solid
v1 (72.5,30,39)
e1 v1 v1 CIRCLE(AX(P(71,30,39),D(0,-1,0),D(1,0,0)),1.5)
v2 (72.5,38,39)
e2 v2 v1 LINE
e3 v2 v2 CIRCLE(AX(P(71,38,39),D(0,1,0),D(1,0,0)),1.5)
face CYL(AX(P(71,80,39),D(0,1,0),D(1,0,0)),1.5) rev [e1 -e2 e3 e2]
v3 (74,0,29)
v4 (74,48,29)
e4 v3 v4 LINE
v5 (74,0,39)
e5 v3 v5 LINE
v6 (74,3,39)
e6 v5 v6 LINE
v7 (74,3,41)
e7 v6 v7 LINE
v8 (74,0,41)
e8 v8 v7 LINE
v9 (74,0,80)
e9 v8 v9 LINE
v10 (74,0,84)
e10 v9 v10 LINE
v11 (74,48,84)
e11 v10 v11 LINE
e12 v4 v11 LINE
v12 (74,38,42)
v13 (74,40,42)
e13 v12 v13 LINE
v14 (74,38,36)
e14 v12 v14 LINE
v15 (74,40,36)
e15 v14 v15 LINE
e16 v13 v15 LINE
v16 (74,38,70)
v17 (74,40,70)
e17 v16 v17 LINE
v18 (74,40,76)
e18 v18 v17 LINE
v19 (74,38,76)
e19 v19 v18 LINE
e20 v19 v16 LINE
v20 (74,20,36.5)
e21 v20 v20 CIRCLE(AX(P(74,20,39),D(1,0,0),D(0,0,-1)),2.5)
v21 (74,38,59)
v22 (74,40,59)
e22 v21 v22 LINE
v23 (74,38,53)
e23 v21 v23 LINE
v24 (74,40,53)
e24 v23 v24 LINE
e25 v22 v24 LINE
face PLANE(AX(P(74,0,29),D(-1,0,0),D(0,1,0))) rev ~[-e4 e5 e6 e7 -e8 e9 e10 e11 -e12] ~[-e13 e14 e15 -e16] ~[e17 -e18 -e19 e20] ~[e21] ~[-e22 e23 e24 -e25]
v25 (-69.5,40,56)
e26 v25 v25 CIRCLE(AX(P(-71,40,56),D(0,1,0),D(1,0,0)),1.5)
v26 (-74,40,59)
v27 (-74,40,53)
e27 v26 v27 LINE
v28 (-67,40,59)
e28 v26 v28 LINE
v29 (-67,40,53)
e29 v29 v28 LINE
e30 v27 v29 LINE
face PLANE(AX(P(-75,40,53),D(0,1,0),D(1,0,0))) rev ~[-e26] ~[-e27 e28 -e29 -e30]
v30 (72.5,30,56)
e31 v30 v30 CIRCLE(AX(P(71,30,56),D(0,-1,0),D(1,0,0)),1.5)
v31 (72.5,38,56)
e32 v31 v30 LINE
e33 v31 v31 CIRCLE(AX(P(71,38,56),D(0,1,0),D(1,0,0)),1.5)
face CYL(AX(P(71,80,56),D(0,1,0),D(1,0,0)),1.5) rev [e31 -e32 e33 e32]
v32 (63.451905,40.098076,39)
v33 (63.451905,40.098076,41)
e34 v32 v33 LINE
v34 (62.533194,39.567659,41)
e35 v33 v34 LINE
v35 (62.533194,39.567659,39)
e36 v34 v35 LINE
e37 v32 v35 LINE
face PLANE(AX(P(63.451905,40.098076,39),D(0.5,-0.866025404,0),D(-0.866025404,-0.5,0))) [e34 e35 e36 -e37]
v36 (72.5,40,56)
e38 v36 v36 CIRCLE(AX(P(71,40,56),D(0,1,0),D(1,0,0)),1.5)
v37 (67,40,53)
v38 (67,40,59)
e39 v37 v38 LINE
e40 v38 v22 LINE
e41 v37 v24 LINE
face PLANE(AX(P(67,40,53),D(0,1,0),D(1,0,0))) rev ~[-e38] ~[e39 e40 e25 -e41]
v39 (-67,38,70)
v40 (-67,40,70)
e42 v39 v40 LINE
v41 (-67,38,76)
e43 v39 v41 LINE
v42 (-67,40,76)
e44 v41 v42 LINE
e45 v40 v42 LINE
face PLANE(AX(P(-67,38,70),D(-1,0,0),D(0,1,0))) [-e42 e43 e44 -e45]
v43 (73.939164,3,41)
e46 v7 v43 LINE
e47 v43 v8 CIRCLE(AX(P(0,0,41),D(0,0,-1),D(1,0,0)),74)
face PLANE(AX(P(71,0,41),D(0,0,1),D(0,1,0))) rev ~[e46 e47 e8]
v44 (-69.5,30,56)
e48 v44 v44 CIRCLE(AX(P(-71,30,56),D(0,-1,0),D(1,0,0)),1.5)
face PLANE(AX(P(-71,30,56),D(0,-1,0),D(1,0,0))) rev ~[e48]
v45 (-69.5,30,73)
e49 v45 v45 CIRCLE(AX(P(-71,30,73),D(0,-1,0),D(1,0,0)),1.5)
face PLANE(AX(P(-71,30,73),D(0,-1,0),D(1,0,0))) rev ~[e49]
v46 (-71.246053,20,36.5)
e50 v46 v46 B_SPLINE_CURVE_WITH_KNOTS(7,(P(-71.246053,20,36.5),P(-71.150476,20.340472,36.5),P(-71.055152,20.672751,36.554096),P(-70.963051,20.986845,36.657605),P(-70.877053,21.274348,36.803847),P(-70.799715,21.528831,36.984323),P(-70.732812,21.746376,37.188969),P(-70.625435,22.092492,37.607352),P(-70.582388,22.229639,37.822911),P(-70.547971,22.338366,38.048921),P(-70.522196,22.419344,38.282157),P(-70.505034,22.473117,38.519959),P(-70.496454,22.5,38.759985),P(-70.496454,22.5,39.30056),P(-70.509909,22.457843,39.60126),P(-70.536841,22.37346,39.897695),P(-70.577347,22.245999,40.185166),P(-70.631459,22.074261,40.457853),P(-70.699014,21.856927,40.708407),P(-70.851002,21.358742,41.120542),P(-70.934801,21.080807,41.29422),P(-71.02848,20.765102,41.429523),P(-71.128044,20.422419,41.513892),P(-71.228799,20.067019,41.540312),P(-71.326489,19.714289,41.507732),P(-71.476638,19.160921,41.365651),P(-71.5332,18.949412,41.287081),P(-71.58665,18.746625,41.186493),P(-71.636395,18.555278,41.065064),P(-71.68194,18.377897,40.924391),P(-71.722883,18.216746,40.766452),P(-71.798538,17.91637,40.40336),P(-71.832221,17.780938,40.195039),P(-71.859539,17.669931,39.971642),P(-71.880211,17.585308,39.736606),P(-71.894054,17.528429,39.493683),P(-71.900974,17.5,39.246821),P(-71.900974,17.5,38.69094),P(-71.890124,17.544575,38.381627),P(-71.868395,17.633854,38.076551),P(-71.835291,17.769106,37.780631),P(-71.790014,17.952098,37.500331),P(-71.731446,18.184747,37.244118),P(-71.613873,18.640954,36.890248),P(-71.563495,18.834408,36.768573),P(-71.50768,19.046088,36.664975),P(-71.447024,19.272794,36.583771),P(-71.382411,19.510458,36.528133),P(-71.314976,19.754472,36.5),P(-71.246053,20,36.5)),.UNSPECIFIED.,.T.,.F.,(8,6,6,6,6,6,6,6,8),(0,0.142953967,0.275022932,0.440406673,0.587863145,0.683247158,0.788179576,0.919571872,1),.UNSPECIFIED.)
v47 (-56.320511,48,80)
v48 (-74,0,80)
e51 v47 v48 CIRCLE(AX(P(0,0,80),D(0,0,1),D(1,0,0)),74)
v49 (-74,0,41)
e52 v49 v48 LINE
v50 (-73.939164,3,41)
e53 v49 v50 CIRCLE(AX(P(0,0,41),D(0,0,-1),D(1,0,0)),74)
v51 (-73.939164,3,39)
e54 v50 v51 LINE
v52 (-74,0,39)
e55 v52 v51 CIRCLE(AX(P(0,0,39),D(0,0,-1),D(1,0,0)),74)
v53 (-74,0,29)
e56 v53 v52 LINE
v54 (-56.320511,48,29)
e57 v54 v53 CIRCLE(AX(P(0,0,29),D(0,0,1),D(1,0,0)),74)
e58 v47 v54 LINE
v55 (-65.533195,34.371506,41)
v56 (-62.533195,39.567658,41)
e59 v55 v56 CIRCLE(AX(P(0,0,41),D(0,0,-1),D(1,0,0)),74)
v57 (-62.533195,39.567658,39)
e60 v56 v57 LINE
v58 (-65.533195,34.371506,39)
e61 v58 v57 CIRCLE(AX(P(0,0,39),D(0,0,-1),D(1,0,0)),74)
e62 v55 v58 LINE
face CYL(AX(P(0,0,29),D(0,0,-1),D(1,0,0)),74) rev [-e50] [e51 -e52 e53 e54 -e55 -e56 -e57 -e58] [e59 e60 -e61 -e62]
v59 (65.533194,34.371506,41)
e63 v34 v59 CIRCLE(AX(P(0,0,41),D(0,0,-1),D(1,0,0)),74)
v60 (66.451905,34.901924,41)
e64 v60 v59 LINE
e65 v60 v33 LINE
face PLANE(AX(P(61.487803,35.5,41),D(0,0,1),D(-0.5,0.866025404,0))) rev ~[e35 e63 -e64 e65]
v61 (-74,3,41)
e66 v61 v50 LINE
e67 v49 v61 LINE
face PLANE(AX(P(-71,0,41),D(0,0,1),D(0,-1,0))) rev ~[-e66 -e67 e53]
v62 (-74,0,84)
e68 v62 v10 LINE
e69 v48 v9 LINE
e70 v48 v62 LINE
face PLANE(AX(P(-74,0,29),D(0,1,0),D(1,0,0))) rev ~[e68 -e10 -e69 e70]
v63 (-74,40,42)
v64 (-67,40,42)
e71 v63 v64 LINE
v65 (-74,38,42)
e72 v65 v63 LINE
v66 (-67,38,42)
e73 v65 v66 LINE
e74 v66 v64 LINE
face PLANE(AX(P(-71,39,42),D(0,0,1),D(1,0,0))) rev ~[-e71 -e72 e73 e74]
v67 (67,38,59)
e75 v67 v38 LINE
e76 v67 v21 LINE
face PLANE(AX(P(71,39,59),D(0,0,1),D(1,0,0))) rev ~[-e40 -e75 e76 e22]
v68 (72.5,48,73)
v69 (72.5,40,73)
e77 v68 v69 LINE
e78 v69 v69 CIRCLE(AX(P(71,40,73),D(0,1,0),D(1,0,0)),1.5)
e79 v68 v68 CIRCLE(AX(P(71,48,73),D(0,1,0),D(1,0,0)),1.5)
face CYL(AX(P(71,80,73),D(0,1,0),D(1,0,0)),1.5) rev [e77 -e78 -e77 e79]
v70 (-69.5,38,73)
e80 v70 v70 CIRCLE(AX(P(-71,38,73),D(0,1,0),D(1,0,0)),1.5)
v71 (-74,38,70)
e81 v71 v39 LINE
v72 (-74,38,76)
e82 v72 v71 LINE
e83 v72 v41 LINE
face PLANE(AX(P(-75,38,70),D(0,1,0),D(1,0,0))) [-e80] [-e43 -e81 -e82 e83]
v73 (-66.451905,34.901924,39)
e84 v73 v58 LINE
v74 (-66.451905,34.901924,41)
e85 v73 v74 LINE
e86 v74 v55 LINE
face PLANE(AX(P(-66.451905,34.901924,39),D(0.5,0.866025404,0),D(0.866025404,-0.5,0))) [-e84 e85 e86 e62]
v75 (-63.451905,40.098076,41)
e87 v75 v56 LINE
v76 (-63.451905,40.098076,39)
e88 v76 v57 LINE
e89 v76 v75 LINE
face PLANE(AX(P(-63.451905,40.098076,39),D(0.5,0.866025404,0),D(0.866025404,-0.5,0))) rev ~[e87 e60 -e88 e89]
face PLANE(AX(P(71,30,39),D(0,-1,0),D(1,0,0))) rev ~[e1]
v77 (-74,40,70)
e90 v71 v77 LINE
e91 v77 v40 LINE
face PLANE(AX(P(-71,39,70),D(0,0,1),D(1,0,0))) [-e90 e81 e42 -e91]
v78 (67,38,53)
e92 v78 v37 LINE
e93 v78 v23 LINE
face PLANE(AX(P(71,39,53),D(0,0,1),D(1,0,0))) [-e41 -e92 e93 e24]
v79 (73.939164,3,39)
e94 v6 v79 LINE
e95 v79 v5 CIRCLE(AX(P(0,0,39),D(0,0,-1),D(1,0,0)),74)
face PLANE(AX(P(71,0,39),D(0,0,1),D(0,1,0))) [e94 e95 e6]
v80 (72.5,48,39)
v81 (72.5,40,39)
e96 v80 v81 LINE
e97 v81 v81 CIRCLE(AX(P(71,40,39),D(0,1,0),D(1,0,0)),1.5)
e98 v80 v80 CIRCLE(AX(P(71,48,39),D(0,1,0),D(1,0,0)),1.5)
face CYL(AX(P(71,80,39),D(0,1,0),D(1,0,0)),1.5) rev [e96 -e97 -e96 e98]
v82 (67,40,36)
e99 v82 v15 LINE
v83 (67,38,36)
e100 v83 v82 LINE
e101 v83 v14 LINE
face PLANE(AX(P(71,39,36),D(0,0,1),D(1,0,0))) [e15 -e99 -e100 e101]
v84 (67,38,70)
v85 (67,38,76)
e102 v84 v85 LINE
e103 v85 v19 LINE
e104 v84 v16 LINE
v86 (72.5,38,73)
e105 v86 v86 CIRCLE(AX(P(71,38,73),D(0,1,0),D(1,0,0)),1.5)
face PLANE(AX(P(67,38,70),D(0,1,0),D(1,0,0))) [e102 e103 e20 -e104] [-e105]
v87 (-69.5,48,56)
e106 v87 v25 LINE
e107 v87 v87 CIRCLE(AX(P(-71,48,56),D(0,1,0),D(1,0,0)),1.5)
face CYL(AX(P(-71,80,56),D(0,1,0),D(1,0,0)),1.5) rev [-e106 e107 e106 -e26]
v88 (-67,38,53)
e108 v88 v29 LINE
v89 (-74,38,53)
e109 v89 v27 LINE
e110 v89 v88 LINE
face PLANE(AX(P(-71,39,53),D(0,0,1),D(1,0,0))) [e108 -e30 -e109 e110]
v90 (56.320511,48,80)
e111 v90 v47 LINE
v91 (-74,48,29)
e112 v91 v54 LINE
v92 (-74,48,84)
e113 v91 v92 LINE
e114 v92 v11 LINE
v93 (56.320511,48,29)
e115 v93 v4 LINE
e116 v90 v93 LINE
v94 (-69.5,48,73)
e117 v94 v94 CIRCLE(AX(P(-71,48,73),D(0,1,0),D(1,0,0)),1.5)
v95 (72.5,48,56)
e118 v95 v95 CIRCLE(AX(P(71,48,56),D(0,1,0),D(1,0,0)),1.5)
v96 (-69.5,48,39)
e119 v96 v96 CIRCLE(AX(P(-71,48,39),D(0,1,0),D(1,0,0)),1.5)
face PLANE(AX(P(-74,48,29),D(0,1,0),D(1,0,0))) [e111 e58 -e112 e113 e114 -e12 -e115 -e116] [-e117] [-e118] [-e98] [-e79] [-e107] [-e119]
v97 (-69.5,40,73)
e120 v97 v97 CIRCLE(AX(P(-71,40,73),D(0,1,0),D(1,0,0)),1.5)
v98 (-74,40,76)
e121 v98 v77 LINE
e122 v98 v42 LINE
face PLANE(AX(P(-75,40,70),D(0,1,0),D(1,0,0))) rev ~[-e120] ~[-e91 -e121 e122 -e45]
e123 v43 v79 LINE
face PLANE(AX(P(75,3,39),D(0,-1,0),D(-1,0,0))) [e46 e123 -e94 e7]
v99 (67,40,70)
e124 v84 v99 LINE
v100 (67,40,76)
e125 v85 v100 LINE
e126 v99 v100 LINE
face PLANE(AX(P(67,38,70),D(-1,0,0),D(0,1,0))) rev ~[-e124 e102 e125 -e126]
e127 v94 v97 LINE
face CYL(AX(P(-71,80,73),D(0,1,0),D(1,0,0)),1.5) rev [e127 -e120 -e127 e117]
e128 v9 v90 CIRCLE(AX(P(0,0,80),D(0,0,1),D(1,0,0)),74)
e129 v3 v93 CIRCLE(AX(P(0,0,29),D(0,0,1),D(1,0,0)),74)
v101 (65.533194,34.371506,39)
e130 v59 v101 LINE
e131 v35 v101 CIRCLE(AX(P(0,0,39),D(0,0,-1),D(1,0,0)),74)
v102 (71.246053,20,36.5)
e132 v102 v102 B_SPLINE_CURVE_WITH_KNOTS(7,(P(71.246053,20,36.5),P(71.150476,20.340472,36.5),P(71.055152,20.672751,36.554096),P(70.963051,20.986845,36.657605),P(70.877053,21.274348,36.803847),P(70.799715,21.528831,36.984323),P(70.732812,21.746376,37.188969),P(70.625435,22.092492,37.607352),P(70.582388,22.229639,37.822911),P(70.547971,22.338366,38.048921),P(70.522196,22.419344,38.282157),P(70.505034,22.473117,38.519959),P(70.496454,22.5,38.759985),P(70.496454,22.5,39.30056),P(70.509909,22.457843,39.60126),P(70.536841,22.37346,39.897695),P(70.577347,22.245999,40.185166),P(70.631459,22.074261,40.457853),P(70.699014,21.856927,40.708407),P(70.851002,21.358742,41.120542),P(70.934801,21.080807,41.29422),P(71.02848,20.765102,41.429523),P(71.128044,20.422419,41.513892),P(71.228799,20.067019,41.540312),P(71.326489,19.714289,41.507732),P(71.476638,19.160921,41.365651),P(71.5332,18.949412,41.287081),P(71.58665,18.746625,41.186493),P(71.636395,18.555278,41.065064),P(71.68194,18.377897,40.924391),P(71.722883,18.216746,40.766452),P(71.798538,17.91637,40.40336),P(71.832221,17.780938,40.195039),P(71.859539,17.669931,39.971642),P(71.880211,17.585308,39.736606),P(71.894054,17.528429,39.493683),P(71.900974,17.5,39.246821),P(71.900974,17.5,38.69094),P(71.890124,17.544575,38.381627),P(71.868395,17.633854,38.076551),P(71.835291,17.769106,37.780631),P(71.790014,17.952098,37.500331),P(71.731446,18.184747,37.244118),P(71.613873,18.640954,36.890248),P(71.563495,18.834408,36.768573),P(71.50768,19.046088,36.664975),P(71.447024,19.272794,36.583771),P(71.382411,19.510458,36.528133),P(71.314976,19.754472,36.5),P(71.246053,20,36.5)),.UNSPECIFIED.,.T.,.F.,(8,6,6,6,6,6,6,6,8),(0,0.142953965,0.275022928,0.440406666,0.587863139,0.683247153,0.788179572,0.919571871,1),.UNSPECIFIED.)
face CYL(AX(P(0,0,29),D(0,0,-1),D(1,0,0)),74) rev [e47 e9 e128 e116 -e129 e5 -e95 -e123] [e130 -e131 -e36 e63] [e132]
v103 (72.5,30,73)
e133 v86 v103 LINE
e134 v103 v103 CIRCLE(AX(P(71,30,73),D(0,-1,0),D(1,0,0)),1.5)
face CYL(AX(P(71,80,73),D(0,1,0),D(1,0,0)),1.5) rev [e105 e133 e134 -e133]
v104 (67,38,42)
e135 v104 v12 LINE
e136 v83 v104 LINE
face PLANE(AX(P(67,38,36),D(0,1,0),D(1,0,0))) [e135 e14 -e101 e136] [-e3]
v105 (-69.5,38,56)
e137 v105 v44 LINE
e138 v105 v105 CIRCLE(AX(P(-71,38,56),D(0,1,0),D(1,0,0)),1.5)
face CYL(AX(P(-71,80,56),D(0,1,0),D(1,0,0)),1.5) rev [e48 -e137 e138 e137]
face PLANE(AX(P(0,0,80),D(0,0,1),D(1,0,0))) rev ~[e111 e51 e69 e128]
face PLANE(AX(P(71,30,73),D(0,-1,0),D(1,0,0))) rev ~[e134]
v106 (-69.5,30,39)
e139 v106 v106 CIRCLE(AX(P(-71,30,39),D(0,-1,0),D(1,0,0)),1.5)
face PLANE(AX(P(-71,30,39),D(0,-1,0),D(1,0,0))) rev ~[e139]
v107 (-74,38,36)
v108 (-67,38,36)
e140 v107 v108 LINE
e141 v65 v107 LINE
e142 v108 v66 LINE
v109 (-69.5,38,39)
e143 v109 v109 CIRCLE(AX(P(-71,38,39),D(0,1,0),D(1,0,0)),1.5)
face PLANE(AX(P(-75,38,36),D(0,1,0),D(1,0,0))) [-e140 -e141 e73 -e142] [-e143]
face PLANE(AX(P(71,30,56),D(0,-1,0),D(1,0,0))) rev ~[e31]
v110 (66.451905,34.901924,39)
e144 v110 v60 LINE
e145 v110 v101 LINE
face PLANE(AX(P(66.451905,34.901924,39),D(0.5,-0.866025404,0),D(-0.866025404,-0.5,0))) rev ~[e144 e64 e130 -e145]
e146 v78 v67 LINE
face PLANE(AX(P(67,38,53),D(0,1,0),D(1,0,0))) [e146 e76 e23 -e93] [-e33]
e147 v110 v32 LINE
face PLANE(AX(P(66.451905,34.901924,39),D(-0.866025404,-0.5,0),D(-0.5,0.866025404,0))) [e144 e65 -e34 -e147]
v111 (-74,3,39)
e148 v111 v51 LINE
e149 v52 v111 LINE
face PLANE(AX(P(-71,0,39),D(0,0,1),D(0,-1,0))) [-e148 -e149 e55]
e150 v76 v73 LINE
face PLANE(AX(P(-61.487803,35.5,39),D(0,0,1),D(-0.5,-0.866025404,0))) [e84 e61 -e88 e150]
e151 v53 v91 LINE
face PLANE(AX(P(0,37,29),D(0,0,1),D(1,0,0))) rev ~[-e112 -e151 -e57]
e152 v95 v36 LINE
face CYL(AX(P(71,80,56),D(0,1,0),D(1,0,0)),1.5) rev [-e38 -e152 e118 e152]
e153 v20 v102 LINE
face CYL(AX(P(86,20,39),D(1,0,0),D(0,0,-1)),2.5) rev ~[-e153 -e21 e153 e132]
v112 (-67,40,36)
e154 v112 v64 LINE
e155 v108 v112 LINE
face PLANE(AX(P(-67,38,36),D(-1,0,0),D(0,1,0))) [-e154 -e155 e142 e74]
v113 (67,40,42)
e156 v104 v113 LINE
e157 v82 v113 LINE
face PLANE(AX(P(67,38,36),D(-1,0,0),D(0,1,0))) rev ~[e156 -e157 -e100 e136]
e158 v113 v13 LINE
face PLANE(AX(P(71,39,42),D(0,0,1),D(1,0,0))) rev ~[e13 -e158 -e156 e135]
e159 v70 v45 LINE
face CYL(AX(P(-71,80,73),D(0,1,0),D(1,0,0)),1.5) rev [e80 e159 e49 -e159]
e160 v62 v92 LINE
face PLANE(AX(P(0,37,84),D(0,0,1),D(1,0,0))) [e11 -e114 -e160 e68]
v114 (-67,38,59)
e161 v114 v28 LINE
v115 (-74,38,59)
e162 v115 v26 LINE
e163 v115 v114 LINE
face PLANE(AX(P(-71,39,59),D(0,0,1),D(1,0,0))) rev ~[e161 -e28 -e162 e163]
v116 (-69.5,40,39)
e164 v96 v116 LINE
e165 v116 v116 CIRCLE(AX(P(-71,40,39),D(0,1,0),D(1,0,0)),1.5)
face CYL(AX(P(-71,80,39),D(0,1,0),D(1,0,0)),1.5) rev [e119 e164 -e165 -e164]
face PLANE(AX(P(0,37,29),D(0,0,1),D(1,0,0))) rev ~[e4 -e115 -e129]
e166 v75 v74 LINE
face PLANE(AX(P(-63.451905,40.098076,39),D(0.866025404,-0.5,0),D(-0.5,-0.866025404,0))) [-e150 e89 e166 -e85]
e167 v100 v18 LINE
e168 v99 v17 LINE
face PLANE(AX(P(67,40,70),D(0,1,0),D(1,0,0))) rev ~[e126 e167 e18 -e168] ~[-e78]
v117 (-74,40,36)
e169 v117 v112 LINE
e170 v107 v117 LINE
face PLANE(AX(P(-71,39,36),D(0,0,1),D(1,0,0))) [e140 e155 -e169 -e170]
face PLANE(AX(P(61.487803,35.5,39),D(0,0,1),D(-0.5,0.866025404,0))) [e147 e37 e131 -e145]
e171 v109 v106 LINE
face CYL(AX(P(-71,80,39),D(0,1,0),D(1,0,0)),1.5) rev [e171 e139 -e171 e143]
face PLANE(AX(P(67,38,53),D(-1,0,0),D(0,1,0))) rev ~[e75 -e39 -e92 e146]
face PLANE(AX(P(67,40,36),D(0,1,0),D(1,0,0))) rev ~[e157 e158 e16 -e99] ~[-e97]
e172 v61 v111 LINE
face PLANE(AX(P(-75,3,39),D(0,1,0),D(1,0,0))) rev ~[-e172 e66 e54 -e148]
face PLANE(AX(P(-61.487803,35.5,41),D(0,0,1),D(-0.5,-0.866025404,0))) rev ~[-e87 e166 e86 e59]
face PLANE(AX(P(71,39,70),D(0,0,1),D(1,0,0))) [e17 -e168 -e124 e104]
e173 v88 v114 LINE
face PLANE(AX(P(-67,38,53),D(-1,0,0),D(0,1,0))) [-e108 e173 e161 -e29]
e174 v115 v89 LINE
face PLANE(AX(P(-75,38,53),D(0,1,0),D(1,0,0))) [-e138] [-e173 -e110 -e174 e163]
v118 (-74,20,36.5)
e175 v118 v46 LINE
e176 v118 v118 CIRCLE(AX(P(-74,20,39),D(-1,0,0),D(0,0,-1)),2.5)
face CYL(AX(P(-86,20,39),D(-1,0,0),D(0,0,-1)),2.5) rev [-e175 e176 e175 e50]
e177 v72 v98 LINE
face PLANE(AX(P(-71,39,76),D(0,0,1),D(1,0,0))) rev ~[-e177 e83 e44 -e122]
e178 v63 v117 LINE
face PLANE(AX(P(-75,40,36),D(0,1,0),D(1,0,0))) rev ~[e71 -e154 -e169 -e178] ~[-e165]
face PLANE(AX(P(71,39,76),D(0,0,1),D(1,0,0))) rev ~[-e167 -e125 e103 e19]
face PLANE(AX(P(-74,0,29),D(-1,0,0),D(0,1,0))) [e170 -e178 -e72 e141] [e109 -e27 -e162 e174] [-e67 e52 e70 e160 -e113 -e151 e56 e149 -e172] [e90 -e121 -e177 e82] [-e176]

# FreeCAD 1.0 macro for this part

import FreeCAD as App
import Part
import Sketcher

V = App.Vector


def add_polygon(sketch, points):
    """Adds a closed chain of lines whose ends are joined by coincident constraints."""
    first, n = sketch.GeometryCount, len(points)
    for a, b in zip(points, points[1:] + points[:1]):
        sketch.addGeometry(Part.LineSegment(App.Vector(*a, 0), App.Vector(*b, 0)), False)
    for i in range(n):
        sketch.addConstraint(Sketcher.Constraint("Coincident", first + i, 2, first + (i + 1) % n, 1))

doc = App.newDocument("Part")
body = doc.addObject("PartDesign::Body", "Body")

# Sketch on YZ plane
sketch1 = body.newObject("Sketcher::SketchObject", "Sketch")
sketch1.AttachmentSupport = (doc.getObject("YZ_Plane"), [""])
sketch1.MapMode = "FlatFace"
sketch1.AttachmentOffset = App.Placement(V(0, 0, -86), App.Rotation())
sketch1.addGeometry(Part.Circle(V(-10, 69, 0), V(0, 0, 1), 2.5), False)
sketch1.addConstraint([
    Sketcher.Constraint("Diameter", 0, 5.0),
    Sketcher.Constraint("DistanceX", 0, 3, -1, 1, 10.0),
    Sketcher.Constraint("DistanceY", -1, 1, 0, 3, 69.0),
])
pad1 = body.newObject("PartDesign::Pad", "Pad")
pad1.Profile = sketch1
pad1.Length = 40
body2 = doc.addObject("PartDesign::Body", "Body001")
body2.AllowCompound = True

# Sketch on YZ plane
sketch2 = body2.newObject("Sketcher::SketchObject", "Sketch001")
sketch2.AttachmentSupport = (doc.getObject("YZ_Plane001"), [""])
sketch2.MapMode = "FlatFace"
sketch2.AttachmentOffset = App.Placement(V(0, 0, -86), App.Rotation())
sketch2.addGeometry(Part.Circle(V(-10, 39, 0), V(0, 0, 1), 2.5), False)
sketch2.addConstraint([
    Sketcher.Constraint("Diameter", 0, 5.0),
    Sketcher.Constraint("DistanceX", 0, 3, -1, 1, 10.0),
    Sketcher.Constraint("DistanceY", -1, 1, 0, 3, 39.0),
])
pad2 = body2.newObject("PartDesign::Pad", "Pad001")
pad2.Profile = sketch2
pad2.Length = 40
doc.recompute()

boolean = body2.newObject("PartDesign::Boolean", "Boolean")
boolean.Type = "Fuse"
boolean.addObjects([body])
body3 = doc.addObject("PartDesign::Body", "Body002")
body3.AllowCompound = True
doc.recompute()

body2.Placement = App.Placement(V(-21.5, 0, 0), App.Rotation(V(0, 0, 1), 90))
boolean2 = body3.newObject("PartDesign::Boolean", "Boolean001")
boolean2.Type = "Fuse"
boolean2.addObjects([body2])
body4 = doc.addObject("PartDesign::Body", "Body003")

# Sketch on YZ plane
sketch3 = body4.newObject("Sketcher::SketchObject", "Sketch002")
sketch3.AttachmentSupport = (doc.getObject("YZ_Plane003"), [""])
sketch3.MapMode = "FlatFace"
sketch3.AttachmentOffset = App.Placement(V(0, 0, -86), App.Rotation())
sketch3.addGeometry(Part.Circle(V(-10, 69, 0), V(0, 0, 1), 2.5), False)
sketch3.addConstraint([
    Sketcher.Constraint("Diameter", 0, 5.0),
    Sketcher.Constraint("DistanceX", 0, 3, -1, 1, 10.0),
    Sketcher.Constraint("DistanceY", -1, 1, 0, 3, 69.0),
])
pad3 = body4.newObject("PartDesign::Pad", "Pad002")
pad3.Profile = sketch3
pad3.Length = 40
body5 = doc.addObject("PartDesign::Body", "Body004")
body5.AllowCompound = True

# Sketch on YZ plane
sketch4 = body5.newObject("Sketcher::SketchObject", "Sketch003")
sketch4.AttachmentSupport = (doc.getObject("YZ_Plane004"), [""])
sketch4.MapMode = "FlatFace"
sketch4.AttachmentOffset = App.Placement(V(0, 0, -86), App.Rotation())
sketch4.addGeometry(Part.Circle(V(-10, 39, 0), V(0, 0, 1), 2.5), False)
sketch4.addConstraint([
    Sketcher.Constraint("Diameter", 0, 5.0),
    Sketcher.Constraint("DistanceX", 0, 3, -1, 1, 10.0),
    Sketcher.Constraint("DistanceY", -1, 1, 0, 3, 39.0),
])
pad4 = body5.newObject("PartDesign::Pad", "Pad003")
pad4.Profile = sketch4
pad4.Length = 40
doc.recompute()

boolean3 = body5.newObject("PartDesign::Boolean", "Boolean002")
boolean3.Type = "Fuse"
boolean3.addObjects([body4])
body6 = doc.addObject("PartDesign::Body", "Body005")
body6.AllowCompound = True
doc.recompute()

body5.Placement = App.Placement(V(1.5, 0, 0), App.Rotation(V(0, 0, 1), 90))
boolean4 = body6.newObject("PartDesign::Boolean", "Boolean003")
boolean4.Type = "Fuse"
boolean4.addObjects([body5])
doc.recompute()

boolean5 = body6.newObject("PartDesign::Boolean", "Boolean004")
boolean5.Type = "Fuse"
boolean5.addObjects([body3])
body7 = doc.addObject("PartDesign::Body", "Body006")

# Sketch on YZ plane
sketch5 = body7.newObject("Sketcher::SketchObject", "Sketch004")
sketch5.AttachmentSupport = (doc.getObject("YZ_Plane006"), [""])
sketch5.MapMode = "FlatFace"
sketch5.AttachmentOffset = App.Placement(V(0, 0, -86), App.Rotation())
sketch5.addGeometry(Part.Circle(V(20, 39, 0), V(0, 0, 1), 2.5), False)
sketch5.addConstraint([
    Sketcher.Constraint("Diameter", 0, 5.0),
    Sketcher.Constraint("DistanceX", -1, 1, 0, 3, 20.0),
    Sketcher.Constraint("DistanceY", -1, 1, 0, 3, 39.0),
])
pad5 = body7.newObject("PartDesign::Pad", "Pad004")
pad5.Profile = sketch5
pad5.Length = 40
body8 = doc.addObject("PartDesign::Body", "Body007")

# Sketch on YZ plane
sketch6 = body8.newObject("Sketcher::SketchObject", "Sketch005")
sketch6.AttachmentSupport = (doc.getObject("YZ_Plane007"), [""])
sketch6.MapMode = "FlatFace"
sketch6.AttachmentOffset = App.Placement(V(0, 0, -86), App.Rotation())
sketch6.addGeometry(Part.Circle(V(-10, 69, 0), V(0, 0, 1), 2.5), False)
sketch6.addConstraint([
    Sketcher.Constraint("Diameter", 0, 5.0),
    Sketcher.Constraint("DistanceX", 0, 3, -1, 1, 10.0),
    Sketcher.Constraint("DistanceY", -1, 1, 0, 3, 69.0),
])
pad6 = body8.newObject("PartDesign::Pad", "Pad005")
pad6.Profile = sketch6
pad6.Length = 40
body9 = doc.addObject("PartDesign::Body", "Body008")
body9.AllowCompound = True

# Sketch on YZ plane
sketch7 = body9.newObject("Sketcher::SketchObject", "Sketch006")
sketch7.AttachmentSupport = (doc.getObject("YZ_Plane008"), [""])
sketch7.MapMode = "FlatFace"
sketch7.AttachmentOffset = App.Placement(V(0, 0, -86), App.Rotation())
sketch7.addGeometry(Part.Circle(V(-10, 39, 0), V(0, 0, 1), 2.5), False)
sketch7.addConstraint([
    Sketcher.Constraint("Diameter", 0, 5.0),
    Sketcher.Constraint("DistanceX", 0, 3, -1, 1, 10.0),
    Sketcher.Constraint("DistanceY", -1, 1, 0, 3, 39.0),
])
pad7 = body9.newObject("PartDesign::Pad", "Pad006")
pad7.Profile = sketch7
pad7.Length = 40
doc.recompute()

boolean6 = body9.newObject("PartDesign::Boolean", "Boolean005")
boolean6.Type = "Fuse"
boolean6.addObjects([body7])
doc.recompute()

boolean7 = body9.newObject("PartDesign::Boolean", "Boolean006")
boolean7.Type = "Fuse"
boolean7.addObjects([body8])
body10 = doc.addObject("PartDesign::Body", "Body009")
body10.AllowCompound = True
doc.recompute()

mirroring = doc.addObject("Part::Mirroring", "Mirroring")
mirroring.Source = body9
mirroring.Base = V(0, 0, 0)
mirroring.Normal = V(1, 0, 0)
body10.BaseFeature = mirroring
doc.recompute()
body11 = doc.addObject("PartDesign::Body", "Body010")

# Sketch on YZ plane
sketch8 = body11.newObject("Sketcher::SketchObject", "Sketch007")
sketch8.AttachmentSupport = (doc.getObject("YZ_Plane010"), [""])
sketch8.MapMode = "FlatFace"
sketch8.AttachmentOffset = App.Placement(V(0, 0, -86), App.Rotation())
sketch8.addGeometry(Part.Circle(V(20, 39, 0), V(0, 0, 1), 2.5), False)
sketch8.addConstraint([
    Sketcher.Constraint("Diameter", 0, 5.0),
    Sketcher.Constraint("DistanceX", -1, 1, 0, 3, 20.0),
    Sketcher.Constraint("DistanceY", -1, 1, 0, 3, 39.0),
])
pad8 = body11.newObject("PartDesign::Pad", "Pad007")
pad8.Profile = sketch8
pad8.Length = 40
body12 = doc.addObject("PartDesign::Body", "Body011")

# Sketch on YZ plane
sketch9 = body12.newObject("Sketcher::SketchObject", "Sketch008")
sketch9.AttachmentSupport = (doc.getObject("YZ_Plane011"), [""])
sketch9.MapMode = "FlatFace"
sketch9.AttachmentOffset = App.Placement(V(0, 0, -86), App.Rotation())
sketch9.addGeometry(Part.Circle(V(-10, 69, 0), V(0, 0, 1), 2.5), False)
sketch9.addConstraint([
    Sketcher.Constraint("Diameter", 0, 5.0),
    Sketcher.Constraint("DistanceX", 0, 3, -1, 1, 10.0),
    Sketcher.Constraint("DistanceY", -1, 1, 0, 3, 69.0),
])
pad9 = body12.newObject("PartDesign::Pad", "Pad008")
pad9.Profile = sketch9
pad9.Length = 40
body13 = doc.addObject("PartDesign::Body", "Body012")
body13.AllowCompound = True

# Sketch on YZ plane
sketch10 = body13.newObject("Sketcher::SketchObject", "Sketch009")
sketch10.AttachmentSupport = (doc.getObject("YZ_Plane012"), [""])
sketch10.MapMode = "FlatFace"
sketch10.AttachmentOffset = App.Placement(V(0, 0, -86), App.Rotation())
sketch10.addGeometry(Part.Circle(V(-10, 39, 0), V(0, 0, 1), 2.5), False)
sketch10.addConstraint([
    Sketcher.Constraint("Diameter", 0, 5.0),
    Sketcher.Constraint("DistanceX", 0, 3, -1, 1, 10.0),
    Sketcher.Constraint("DistanceY", -1, 1, 0, 3, 39.0),
])
pad10 = body13.newObject("PartDesign::Pad", "Pad009")
pad10.Profile = sketch10
pad10.Length = 40
doc.recompute()

boolean8 = body13.newObject("PartDesign::Boolean", "Boolean007")
boolean8.Type = "Fuse"
boolean8.addObjects([body11])
doc.recompute()

boolean9 = body13.newObject("PartDesign::Boolean", "Boolean008")
boolean9.Type = "Fuse"
boolean9.addObjects([body12])
doc.recompute()

boolean10 = body13.newObject("PartDesign::Boolean", "Boolean009")
boolean10.Type = "Fuse"
boolean10.addObjects([body6])
doc.recompute()

boolean11 = body13.newObject("PartDesign::Boolean", "Boolean010")
boolean11.Type = "Fuse"
boolean11.addObjects([body10])
body14 = doc.addObject("PartDesign::Body", "Body013")

# Sketch on XY plane
sketch11 = body14.newObject("Sketcher::SketchObject", "Sketch010")
sketch11.AttachmentSupport = (doc.getObject("XY_Plane013"), [""])
sketch11.MapMode = "FlatFace"
add_polygon(sketch11, [(0, 8), (0, 0), (6, 0), (6, 8)])  # lines 0-3
sketch11.addConstraint([
    Sketcher.Constraint("Vertical", 0),
    Sketcher.Constraint("Horizontal", 1),
    Sketcher.Constraint("Vertical", 2),
    Sketcher.Constraint("Horizontal", 3),
    Sketcher.Constraint("Coincident", 0, 2, -1, 1),
    Sketcher.Constraint("DistanceX", 1, 1, 1, 2, 6.0),
    Sketcher.Constraint("DistanceY", 0, 2, 0, 1, 8.0),
])
pad11 = body14.newObject("PartDesign::Pad", "Pad010")
pad11.Profile = sketch11
pad11.Length = 2
body15 = doc.addObject("PartDesign::Body", "Body014")
doc.recompute()

body14.Placement = App.Placement(V(34.901924, -66.451905, 39), App.Rotation(V(0, 0, 1), 30))
boolean12 = body15.newObject("PartDesign::Boolean", "Boolean011")
boolean12.Type = "Fuse"
boolean12.addObjects([body14])
body16 = doc.addObject("PartDesign::Body", "Body015")

# Sketch on XY plane
sketch12 = body16.newObject("Sketcher::SketchObject", "Sketch011")
sketch12.AttachmentSupport = (doc.getObject("XY_Plane015"), [""])
sketch12.MapMode = "FlatFace"
add_polygon(sketch12, [(0, 8), (0, 0), (6, 0), (6, 8)])  # lines 0-3
sketch12.addConstraint([
    Sketcher.Constraint("Vertical", 0),
    Sketcher.Constraint("Horizontal", 1),
    Sketcher.Constraint("Vertical", 2),
    Sketcher.Constraint("Horizontal", 3),
    Sketcher.Constraint("Coincident", 0, 2, -1, 1),
    Sketcher.Constraint("DistanceX", 1, 1, 1, 2, 6.0),
    Sketcher.Constraint("DistanceY", 0, 2, 0, 1, 8.0),
])
pad12 = body16.newObject("PartDesign::Pad", "Pad011")
pad12.Profile = sketch12
pad12.Length = 2
body17 = doc.addObject("PartDesign::Body", "Body016")
doc.recompute()

body16.Placement = App.Placement(V(63.451905, -40.098076, 39), App.Rotation(V(0, 0, 1), 60))
boolean13 = body17.newObject("PartDesign::Boolean", "Boolean012")
boolean13.Type = "Fuse"
boolean13.addObjects([body16])
body18 = doc.addObject("PartDesign::Body", "Body017")

# Sketch on XY plane
sketch13 = body18.newObject("Sketcher::SketchObject", "Sketch012")
sketch13.AttachmentSupport = (doc.getObject("XY_Plane017"), [""])
sketch13.MapMode = "FlatFace"
sketch13.AttachmentOffset = App.Placement(V(0, 0, 39), App.Rotation())
add_polygon(sketch13, [(67, -3), (75, -3), (75, 3), (67, 3)])  # lines 0-3
sketch13.addConstraint([
    Sketcher.Constraint("Horizontal", 0),
    Sketcher.Constraint("Vertical", 1),
    Sketcher.Constraint("Horizontal", 2),
    Sketcher.Constraint("Vertical", 3),
    Sketcher.Constraint("DistanceX", 0, 1, 0, 2, 8.0),
    Sketcher.Constraint("DistanceY", 1, 1, 1, 2, 6.0),
    Sketcher.Constraint("DistanceX", -1, 1, 0, 2, 75.0),
    Sketcher.Constraint("DistanceY", 0, 2, -1, 1, 3.0),
])
pad13 = body18.newObject("PartDesign::Pad", "Pad012")
pad13.Profile = sketch13
pad13.Length = 2
body19 = doc.addObject("PartDesign::Body", "Body018")

# Sketch on XY plane
sketch14 = body19.newObject("Sketcher::SketchObject", "Sketch013")
sketch14.AttachmentSupport = (doc.getObject("XY_Plane018"), [""])
sketch14.MapMode = "FlatFace"
add_polygon(sketch14, [(0, 8), (0, 0), (6, 0), (6, 8)])  # lines 0-3
sketch14.addConstraint([
    Sketcher.Constraint("Vertical", 0),
    Sketcher.Constraint("Horizontal", 1),
    Sketcher.Constraint("Vertical", 2),
    Sketcher.Constraint("Horizontal", 3),
    Sketcher.Constraint("Coincident", 0, 2, -1, 1),
    Sketcher.Constraint("DistanceX", 1, 1, 1, 2, 6.0),
    Sketcher.Constraint("DistanceY", 0, 2, 0, 1, 8.0),
])
pad14 = body19.newObject("PartDesign::Pad", "Pad013")
pad14.Profile = sketch14
pad14.Length = 2
body20 = doc.addObject("PartDesign::Body", "Body019")
doc.recompute()

body19.Placement = App.Placement(V(66.451905, 34.901924, 39), App.Rotation(V(0, 0, 1), 120))
boolean14 = body20.newObject("PartDesign::Boolean", "Boolean013")
boolean14.Type = "Fuse"
boolean14.addObjects([body19])
body21 = doc.addObject("PartDesign::Body", "Body020")

# Sketch on XY plane
sketch15 = body21.newObject("Sketcher::SketchObject", "Sketch014")
sketch15.AttachmentSupport = (doc.getObject("XY_Plane020"), [""])
sketch15.MapMode = "FlatFace"
add_polygon(sketch15, [(0, 8), (0, 0), (6, 0), (6, 8)])  # lines 0-3
sketch15.addConstraint([
    Sketcher.Constraint("Vertical", 0),
    Sketcher.Constraint("Horizontal", 1),
    Sketcher.Constraint("Vertical", 2),
    Sketcher.Constraint("Horizontal", 3),
    Sketcher.Constraint("Coincident", 0, 2, -1, 1),
    Sketcher.Constraint("DistanceX", 1, 1, 1, 2, 6.0),
    Sketcher.Constraint("DistanceY", 0, 2, 0, 1, 8.0),
])
pad15 = body21.newObject("PartDesign::Pad", "Pad014")
pad15.Profile = sketch15
pad15.Length = 2
body22 = doc.addObject("PartDesign::Body", "Body021")
doc.recompute()

body21.Placement = App.Placement(V(40.098076, 63.451905, 39), App.Rotation(V(0, 0, 1), 150))
boolean15 = body22.newObject("PartDesign::Boolean", "Boolean014")
boolean15.Type = "Fuse"
boolean15.addObjects([body21])
body23 = doc.addObject("PartDesign::Body", "Body022")

# Sketch on XY plane
sketch16 = body23.newObject("Sketcher::SketchObject", "Sketch015")
sketch16.AttachmentSupport = (doc.getObject("XY_Plane022"), [""])
sketch16.MapMode = "FlatFace"
sketch16.AttachmentOffset = App.Placement(V(0, 0, 39), App.Rotation())
add_polygon(sketch16, [(3, 67), (3, 75), (-3, 75), (-3, 67)])  # lines 0-3
sketch16.addConstraint([
    Sketcher.Constraint("Vertical", 0),
    Sketcher.Constraint("Horizontal", 1),
    Sketcher.Constraint("Vertical", 2),
    Sketcher.Constraint("Horizontal", 3),
    Sketcher.Constraint("DistanceX", 1, 2, 1, 1, 6.0),
    Sketcher.Constraint("DistanceY", 0, 1, 0, 2, 8.0),
    Sketcher.Constraint("DistanceX", -1, 1, 0, 2, 3.0),
    Sketcher.Constraint("DistanceY", -1, 1, 0, 2, 75.0),
])
pad16 = body23.newObject("PartDesign::Pad", "Pad015")
pad16.Profile = sketch16
pad16.Length = 2
body24 = doc.addObject("PartDesign::Body", "Body023")

# Sketch on XY plane
sketch17 = body24.newObject("Sketcher::SketchObject", "Sketch016")
sketch17.AttachmentSupport = (doc.getObject("XY_Plane023"), [""])
sketch17.MapMode = "FlatFace"
add_polygon(sketch17, [(0, 8), (0, 0), (6, 0), (6, 8)])  # lines 0-3
sketch17.addConstraint([
    Sketcher.Constraint("Vertical", 0),
    Sketcher.Constraint("Horizontal", 1),
    Sketcher.Constraint("Vertical", 2),
    Sketcher.Constraint("Horizontal", 3),
    Sketcher.Constraint("Coincident", 0, 2, -1, 1),
    Sketcher.Constraint("DistanceX", 1, 1, 1, 2, 6.0),
    Sketcher.Constraint("DistanceY", 0, 2, 0, 1, 8.0),
])
pad17 = body24.newObject("PartDesign::Pad", "Pad016")
pad17.Profile = sketch17
pad17.Length = 2
body25 = doc.addObject("PartDesign::Body", "Body024")
doc.recompute()

body24.Placement = App.Placement(V(-34.901924, 66.451905, 39), App.Rotation(V(0, 0, 1), 210))
boolean16 = body25.newObject("PartDesign::Boolean", "Boolean015")
boolean16.Type = "Fuse"
boolean16.addObjects([body24])
body26 = doc.addObject("PartDesign::Body", "Body025")

# Sketch on XY plane
sketch18 = body26.newObject("Sketcher::SketchObject", "Sketch017")
sketch18.AttachmentSupport = (doc.getObject("XY_Plane025"), [""])
sketch18.MapMode = "FlatFace"
add_polygon(sketch18, [(0, 8), (0, 0), (6, 0), (6, 8)])  # lines 0-3
sketch18.addConstraint([
    Sketcher.Constraint("Vertical", 0),
    Sketcher.Constraint("Horizontal", 1),
    Sketcher.Constraint("Vertical", 2),
    Sketcher.Constraint("Horizontal", 3),
    Sketcher.Constraint("Coincident", 0, 2, -1, 1),
    Sketcher.Constraint("DistanceX", 1, 1, 1, 2, 6.0),
    Sketcher.Constraint("DistanceY", 0, 2, 0, 1, 8.0),
])
pad18 = body26.newObject("PartDesign::Pad", "Pad017")
pad18.Profile = sketch18
pad18.Length = 2
body27 = doc.addObject("PartDesign::Body", "Body026")
doc.recompute()

body26.Placement = App.Placement(V(-63.451905, 40.098076, 39), App.Rotation(V(0, 0, 1), 240))
boolean17 = body27.newObject("PartDesign::Boolean", "Boolean016")
boolean17.Type = "Fuse"
boolean17.addObjects([body26])
body28 = doc.addObject("PartDesign::Body", "Body027")

# Sketch on XY plane
sketch19 = body28.newObject("Sketcher::SketchObject", "Sketch018")
sketch19.AttachmentSupport = (doc.getObject("XY_Plane027"), [""])
sketch19.MapMode = "FlatFace"
sketch19.AttachmentOffset = App.Placement(V(0, 0, 39), App.Rotation())
add_polygon(sketch19, [(-67, 3), (-75, 3), (-75, -3), (-67, -3)])  # lines 0-3
sketch19.addConstraint([
    Sketcher.Constraint("Horizontal", 0),
    Sketcher.Constraint("Vertical", 1),
    Sketcher.Constraint("Horizontal", 2),
    Sketcher.Constraint("Vertical", 3),
    Sketcher.Constraint("DistanceX", 0, 2, 0, 1, 8.0),
    Sketcher.Constraint("DistanceY", 1, 2, 1, 1, 6.0),
    Sketcher.Constraint("DistanceX", 0, 2, -1, 1, 75.0),
    Sketcher.Constraint("DistanceY", -1, 1, 0, 2, 3.0),
])
pad19 = body28.newObject("PartDesign::Pad", "Pad018")
pad19.Profile = sketch19
pad19.Length = 2
body29 = doc.addObject("PartDesign::Body", "Body028")

# Sketch on XY plane
sketch20 = body29.newObject("Sketcher::SketchObject", "Sketch019")
sketch20.AttachmentSupport = (doc.getObject("XY_Plane028"), [""])
sketch20.MapMode = "FlatFace"
add_polygon(sketch20, [(0, 8), (0, 0), (6, 0), (6, 8)])  # lines 0-3
sketch20.addConstraint([
    Sketcher.Constraint("Vertical", 0),
    Sketcher.Constraint("Horizontal", 1),
    Sketcher.Constraint("Vertical", 2),
    Sketcher.Constraint("Horizontal", 3),
    Sketcher.Constraint("Coincident", 0, 2, -1, 1),
    Sketcher.Constraint("DistanceX", 1, 1, 1, 2, 6.0),
    Sketcher.Constraint("DistanceY", 0, 2, 0, 1, 8.0),
])
pad20 = body29.newObject("PartDesign::Pad", "Pad019")
pad20.Profile = sketch20
pad20.Length = 2
body30 = doc.addObject("PartDesign::Body", "Body029")
doc.recompute()

body29.Placement = App.Placement(V(-66.451905, -34.901924, 39), App.Rotation(V(0, 0, -1), 60))
boolean18 = body30.newObject("PartDesign::Boolean", "Boolean017")
boolean18.Type = "Fuse"
boolean18.addObjects([body29])
body31 = doc.addObject("PartDesign::Body", "Body030")

# Sketch on XY plane
sketch21 = body31.newObject("Sketcher::SketchObject", "Sketch020")
sketch21.AttachmentSupport = (doc.getObject("XY_Plane030"), [""])
sketch21.MapMode = "FlatFace"
add_polygon(sketch21, [(0, 8), (0, 0), (6, 0), (6, 8)])  # lines 0-3
sketch21.addConstraint([
    Sketcher.Constraint("Vertical", 0),
    Sketcher.Constraint("Horizontal", 1),
    Sketcher.Constraint("Vertical", 2),
    Sketcher.Constraint("Horizontal", 3),
    Sketcher.Constraint("Coincident", 0, 2, -1, 1),
    Sketcher.Constraint("DistanceX", 1, 1, 1, 2, 6.0),
    Sketcher.Constraint("DistanceY", 0, 2, 0, 1, 8.0),
])
pad21 = body31.newObject("PartDesign::Pad", "Pad020")
pad21.Profile = sketch21
pad21.Length = 2
body32 = doc.addObject("PartDesign::Body", "Body031")
doc.recompute()

body31.Placement = App.Placement(V(-40.098076, -63.451905, 39), App.Rotation(V(0, 0, -1), 30))
boolean19 = body32.newObject("PartDesign::Boolean", "Boolean018")
boolean19.Type = "Fuse"
boolean19.addObjects([body31])
body33 = doc.addObject("PartDesign::Body", "Body032")
body33.AllowCompound = True

# Sketch on XY plane
sketch22 = body33.newObject("Sketcher::SketchObject", "Sketch021")
sketch22.AttachmentSupport = (doc.getObject("XY_Plane032"), [""])
sketch22.MapMode = "FlatFace"
sketch22.AttachmentOffset = App.Placement(V(0, 0, 39), App.Rotation())
add_polygon(sketch22, [(-3, -67), (-3, -75), (3, -75), (3, -67)])  # lines 0-3
sketch22.addConstraint([
    Sketcher.Constraint("Vertical", 0),
    Sketcher.Constraint("Horizontal", 1),
    Sketcher.Constraint("Vertical", 2),
    Sketcher.Constraint("Horizontal", 3),
    Sketcher.Constraint("DistanceX", 1, 1, 1, 2, 6.0),
    Sketcher.Constraint("DistanceY", 0, 2, 0, 1, 8.0),
    Sketcher.Constraint("DistanceX", 0, 2, -1, 1, 3.0),
    Sketcher.Constraint("DistanceY", 0, 2, -1, 1, 75.0),
])
pad22 = body33.newObject("PartDesign::Pad", "Pad021")
pad22.Profile = sketch22
pad22.Length = 2
doc.recompute()

boolean20 = body33.newObject("PartDesign::Boolean", "Boolean019")
boolean20.Type = "Fuse"
boolean20.addObjects([body15])
doc.recompute()

boolean21 = body33.newObject("PartDesign::Boolean", "Boolean020")
boolean21.Type = "Fuse"
boolean21.addObjects([body17])
doc.recompute()

boolean22 = body33.newObject("PartDesign::Boolean", "Boolean021")
boolean22.Type = "Fuse"
boolean22.addObjects([body18])
doc.recompute()

boolean23 = body33.newObject("PartDesign::Boolean", "Boolean022")
boolean23.Type = "Fuse"
boolean23.addObjects([body20])
doc.recompute()

boolean24 = body33.newObject("PartDesign::Boolean", "Boolean023")
boolean24.Type = "Fuse"
boolean24.addObjects([body22])
doc.recompute()

boolean25 = body33.newObject("PartDesign::Boolean", "Boolean024")
boolean25.Type = "Fuse"
boolean25.addObjects([body23])
doc.recompute()

boolean26 = body33.newObject("PartDesign::Boolean", "Boolean025")
boolean26.Type = "Fuse"
boolean26.addObjects([body25])
doc.recompute()

boolean27 = body33.newObject("PartDesign::Boolean", "Boolean026")
boolean27.Type = "Fuse"
boolean27.addObjects([body27])
doc.recompute()

boolean28 = body33.newObject("PartDesign::Boolean", "Boolean027")
boolean28.Type = "Fuse"
boolean28.addObjects([body28])
doc.recompute()

boolean29 = body33.newObject("PartDesign::Boolean", "Boolean028")
boolean29.Type = "Fuse"
boolean29.addObjects([body30])
doc.recompute()

boolean30 = body33.newObject("PartDesign::Boolean", "Boolean029")
boolean30.Type = "Fuse"
boolean30.addObjects([body32])
body34 = doc.addObject("PartDesign::Body", "Body033")

# Sketch on XY plane
sketch23 = body34.newObject("Sketcher::SketchObject", "Sketch022")
sketch23.AttachmentSupport = (doc.getObject("XY_Plane033"), [""])
sketch23.MapMode = "FlatFace"
sketch23.AttachmentOffset = App.Placement(V(0, 0, 36), App.Rotation())
add_polygon(sketch23, [(67, 40), (67, 38), (75, 38), (75, 40)])  # lines 0-3
sketch23.addConstraint([
    Sketcher.Constraint("Vertical", 0),
    Sketcher.Constraint("Horizontal", 1),
    Sketcher.Constraint("Vertical", 2),
    Sketcher.Constraint("Horizontal", 3),
    Sketcher.Constraint("DistanceX", 1, 1, 1, 2, 8.0),
    Sketcher.Constraint("DistanceY", 0, 2, 0, 1, 2.0),
    Sketcher.Constraint("DistanceX", -1, 1, 0, 2, 67.0),
    Sketcher.Constraint("DistanceY", -1, 1, 0, 2, 38.0),
])
pad23 = body34.newObject("PartDesign::Pad", "Pad022")
pad23.Profile = sketch23
pad23.Length = 6
body35 = doc.addObject("PartDesign::Body", "Body034")

# Sketch on XY plane
sketch24 = body35.newObject("Sketcher::SketchObject", "Sketch023")
sketch24.AttachmentSupport = (doc.getObject("XY_Plane034"), [""])
sketch24.MapMode = "FlatFace"
sketch24.AttachmentOffset = App.Placement(V(0, 0, 70), App.Rotation())
add_polygon(sketch24, [(67, 40), (67, 38), (75, 38), (75, 40)])  # lines 0-3
sketch24.addConstraint([
    Sketcher.Constraint("Vertical", 0),
    Sketcher.Constraint("Horizontal", 1),
    Sketcher.Constraint("Vertical", 2),
    Sketcher.Constraint("Horizontal", 3),
    Sketcher.Constraint("DistanceX", 1, 1, 1, 2, 8.0),
    Sketcher.Constraint("DistanceY", 0, 2, 0, 1, 2.0),
    Sketcher.Constraint("DistanceX", -1, 1, 0, 2, 67.0),
    Sketcher.Constraint("DistanceY", -1, 1, 0, 2, 38.0),
])
pad24 = body35.newObject("PartDesign::Pad", "Pad023")
pad24.Profile = sketch24
pad24.Length = 6
body36 = doc.addObject("PartDesign::Body", "Body035")

# Sketch on XY plane
sketch25 = body36.newObject("Sketcher::SketchObject", "Sketch024")
sketch25.AttachmentSupport = (doc.getObject("XY_Plane035"), [""])
sketch25.MapMode = "FlatFace"
sketch25.AttachmentOffset = App.Placement(V(0, 0, 70), App.Rotation())
add_polygon(sketch25, [(-75, 40), (-75, 38), (-67, 38), (-67, 40)])  # lines 0-3
sketch25.addConstraint([
    Sketcher.Constraint("Vertical", 0),
    Sketcher.Constraint("Horizontal", 1),
    Sketcher.Constraint("Vertical", 2),
    Sketcher.Constraint("Horizontal", 3),
    Sketcher.Constraint("DistanceX", 1, 1, 1, 2, 8.0),
    Sketcher.Constraint("DistanceY", 0, 2, 0, 1, 2.0),
    Sketcher.Constraint("DistanceX", 0, 2, -1, 1, 75.0),
    Sketcher.Constraint("DistanceY", -1, 1, 0, 2, 38.0),
])
pad25 = body36.newObject("PartDesign::Pad", "Pad024")
pad25.Profile = sketch25
pad25.Length = 6
body37 = doc.addObject("PartDesign::Body", "Body036")

# Sketch on XY plane
sketch26 = body37.newObject("Sketcher::SketchObject", "Sketch025")
sketch26.AttachmentSupport = (doc.getObject("XY_Plane036"), [""])
sketch26.MapMode = "FlatFace"
sketch26.AttachmentOffset = App.Placement(V(0, 0, 53), App.Rotation())
add_polygon(sketch26, [(-75, 40), (-75, 38), (-67, 38), (-67, 40)])  # lines 0-3
sketch26.addConstraint([
    Sketcher.Constraint("Vertical", 0),
    Sketcher.Constraint("Horizontal", 1),
    Sketcher.Constraint("Vertical", 2),
    Sketcher.Constraint("Horizontal", 3),
    Sketcher.Constraint("DistanceX", 1, 1, 1, 2, 8.0),
    Sketcher.Constraint("DistanceY", 0, 2, 0, 1, 2.0),
    Sketcher.Constraint("DistanceX", 0, 2, -1, 1, 75.0),
    Sketcher.Constraint("DistanceY", -1, 1, 0, 2, 38.0),
])
pad26 = body37.newObject("PartDesign::Pad", "Pad025")
pad26.Profile = sketch26
pad26.Length = 6
body38 = doc.addObject("PartDesign::Body", "Body037")

# Sketch on XY plane
sketch27 = body38.newObject("Sketcher::SketchObject", "Sketch026")
sketch27.AttachmentSupport = (doc.getObject("XY_Plane037"), [""])
sketch27.MapMode = "FlatFace"
sketch27.AttachmentOffset = App.Placement(V(0, 0, 53), App.Rotation())
add_polygon(sketch27, [(67, 40), (67, 38), (75, 38), (75, 40)])  # lines 0-3
sketch27.addConstraint([
    Sketcher.Constraint("Vertical", 0),
    Sketcher.Constraint("Horizontal", 1),
    Sketcher.Constraint("Vertical", 2),
    Sketcher.Constraint("Horizontal", 3),
    Sketcher.Constraint("DistanceX", 1, 1, 1, 2, 8.0),
    Sketcher.Constraint("DistanceY", 0, 2, 0, 1, 2.0),
    Sketcher.Constraint("DistanceX", -1, 1, 0, 2, 67.0),
    Sketcher.Constraint("DistanceY", -1, 1, 0, 2, 38.0),
])
pad27 = body38.newObject("PartDesign::Pad", "Pad026")
pad27.Profile = sketch27
pad27.Length = 6
body39 = doc.addObject("PartDesign::Body", "Body038")
body39.AllowCompound = True

# Sketch on XY plane
sketch28 = body39.newObject("Sketcher::SketchObject", "Sketch027")
sketch28.AttachmentSupport = (doc.getObject("XY_Plane038"), [""])
sketch28.MapMode = "FlatFace"
sketch28.AttachmentOffset = App.Placement(V(0, 0, 36), App.Rotation())
add_polygon(sketch28, [(-75, 40), (-75, 38), (-67, 38), (-67, 40)])  # lines 0-3
sketch28.addConstraint([
    Sketcher.Constraint("Vertical", 0),
    Sketcher.Constraint("Horizontal", 1),
    Sketcher.Constraint("Vertical", 2),
    Sketcher.Constraint("Horizontal", 3),
    Sketcher.Constraint("DistanceX", 1, 1, 1, 2, 8.0),
    Sketcher.Constraint("DistanceY", 0, 2, 0, 1, 2.0),
    Sketcher.Constraint("DistanceX", 0, 2, -1, 1, 75.0),
    Sketcher.Constraint("DistanceY", -1, 1, 0, 2, 38.0),
])
pad28 = body39.newObject("PartDesign::Pad", "Pad027")
pad28.Profile = sketch28
pad28.Length = 6
doc.recompute()

boolean31 = body39.newObject("PartDesign::Boolean", "Boolean030")
boolean31.Type = "Fuse"
boolean31.addObjects([body34])
doc.recompute()

boolean32 = body39.newObject("PartDesign::Boolean", "Boolean031")
boolean32.Type = "Fuse"
boolean32.addObjects([body35])
doc.recompute()

boolean33 = body39.newObject("PartDesign::Boolean", "Boolean032")
boolean33.Type = "Fuse"
boolean33.addObjects([body36])
doc.recompute()

boolean34 = body39.newObject("PartDesign::Boolean", "Boolean033")
boolean34.Type = "Fuse"
boolean34.addObjects([body37])
doc.recompute()

boolean35 = body39.newObject("PartDesign::Boolean", "Boolean034")
boolean35.Type = "Fuse"
boolean35.addObjects([body38])
body40 = doc.addObject("PartDesign::Body", "Body039")

# Sketch on XZ plane
sketch29 = body40.newObject("Sketcher::SketchObject", "Sketch028")
sketch29.AttachmentSupport = (doc.getObject("XZ_Plane039"), [""])
sketch29.MapMode = "FlatFace"
sketch29.AttachmentOffset = App.Placement(V(0, 0, -80), App.Rotation())
sketch29.addGeometry(Part.Circle(V(71, 39, 0), V(0, 0, 1), 1.5), False)
sketch29.addConstraint([
    Sketcher.Constraint("Diameter", 0, 3.0),
    Sketcher.Constraint("DistanceX", -1, 1, 0, 3, 71.0),
    Sketcher.Constraint("DistanceY", -1, 1, 0, 3, 39.0),
])
pad29 = body40.newObject("PartDesign::Pad", "Pad028")
pad29.Profile = sketch29
pad29.Length = 50
body41 = doc.addObject("PartDesign::Body", "Body040")

# Sketch on XZ plane
sketch30 = body41.newObject("Sketcher::SketchObject", "Sketch029")
sketch30.AttachmentSupport = (doc.getObject("XZ_Plane040"), [""])
sketch30.MapMode = "FlatFace"
sketch30.AttachmentOffset = App.Placement(V(0, 0, -80), App.Rotation())
sketch30.addGeometry(Part.Circle(V(-71, 39, 0), V(0, 0, 1), 1.5), False)
sketch30.addConstraint([
    Sketcher.Constraint("Diameter", 0, 3.0),
    Sketcher.Constraint("DistanceX", 0, 3, -1, 1, 71.0),
    Sketcher.Constraint("DistanceY", -1, 1, 0, 3, 39.0),
])
pad30 = body41.newObject("PartDesign::Pad", "Pad029")
pad30.Profile = sketch30
pad30.Length = 50
body42 = doc.addObject("PartDesign::Body", "Body041")

# Sketch on XZ plane
sketch31 = body42.newObject("Sketcher::SketchObject", "Sketch030")
sketch31.AttachmentSupport = (doc.getObject("XZ_Plane041"), [""])
sketch31.MapMode = "FlatFace"
sketch31.AttachmentOffset = App.Placement(V(0, 0, -80), App.Rotation())
sketch31.addGeometry(Part.Circle(V(71, 73, 0), V(0, 0, 1), 1.5), False)
sketch31.addConstraint([
    Sketcher.Constraint("Diameter", 0, 3.0),
    Sketcher.Constraint("DistanceX", -1, 1, 0, 3, 71.0),
    Sketcher.Constraint("DistanceY", -1, 1, 0, 3, 73.0),
])
pad31 = body42.newObject("PartDesign::Pad", "Pad030")
pad31.Profile = sketch31
pad31.Length = 50
body43 = doc.addObject("PartDesign::Body", "Body042")

# Sketch on XZ plane
sketch32 = body43.newObject("Sketcher::SketchObject", "Sketch031")
sketch32.AttachmentSupport = (doc.getObject("XZ_Plane042"), [""])
sketch32.MapMode = "FlatFace"
sketch32.AttachmentOffset = App.Placement(V(0, 0, -80), App.Rotation())
sketch32.addGeometry(Part.Circle(V(-71, 56, 0), V(0, 0, 1), 1.5), False)
sketch32.addConstraint([
    Sketcher.Constraint("Diameter", 0, 3.0),
    Sketcher.Constraint("DistanceX", 0, 3, -1, 1, 71.0),
    Sketcher.Constraint("DistanceY", -1, 1, 0, 3, 56.0),
])
pad32 = body43.newObject("PartDesign::Pad", "Pad031")
pad32.Profile = sketch32
pad32.Length = 50
body44 = doc.addObject("PartDesign::Body", "Body043")

# Sketch on XZ plane
sketch33 = body44.newObject("Sketcher::SketchObject", "Sketch032")
sketch33.AttachmentSupport = (doc.getObject("XZ_Plane043"), [""])
sketch33.MapMode = "FlatFace"
sketch33.AttachmentOffset = App.Placement(V(0, 0, -80), App.Rotation())
sketch33.addGeometry(Part.Circle(V(71, 56, 0), V(0, 0, 1), 1.5), False)
sketch33.addConstraint([
    Sketcher.Constraint("Diameter", 0, 3.0),
    Sketcher.Constraint("DistanceX", -1, 1, 0, 3, 71.0),
    Sketcher.Constraint("DistanceY", -1, 1, 0, 3, 56.0),
])
pad33 = body44.newObject("PartDesign::Pad", "Pad032")
pad33.Profile = sketch33
pad33.Length = 50
body45 = doc.addObject("PartDesign::Body", "Body044")
body45.AllowCompound = True

# Sketch on XZ plane
sketch34 = body45.newObject("Sketcher::SketchObject", "Sketch033")
sketch34.AttachmentSupport = (doc.getObject("XZ_Plane044"), [""])
sketch34.MapMode = "FlatFace"
sketch34.AttachmentOffset = App.Placement(V(0, 0, -80), App.Rotation())
sketch34.addGeometry(Part.Circle(V(-71, 73, 0), V(0, 0, 1), 1.5), False)
sketch34.addConstraint([
    Sketcher.Constraint("Diameter", 0, 3.0),
    Sketcher.Constraint("DistanceX", 0, 3, -1, 1, 71.0),
    Sketcher.Constraint("DistanceY", -1, 1, 0, 3, 73.0),
])
pad34 = body45.newObject("PartDesign::Pad", "Pad033")
pad34.Profile = sketch34
pad34.Length = 50
doc.recompute()

boolean36 = body45.newObject("PartDesign::Boolean", "Boolean035")
boolean36.Type = "Fuse"
boolean36.addObjects([body40])
doc.recompute()

boolean37 = body45.newObject("PartDesign::Boolean", "Boolean036")
boolean37.Type = "Fuse"
boolean37.addObjects([body41])
doc.recompute()

boolean38 = body45.newObject("PartDesign::Boolean", "Boolean037")
boolean38.Type = "Fuse"
boolean38.addObjects([body42])
doc.recompute()

boolean39 = body45.newObject("PartDesign::Boolean", "Boolean038")
boolean39.Type = "Fuse"
boolean39.addObjects([body43])
doc.recompute()

boolean40 = body45.newObject("PartDesign::Boolean", "Boolean039")
boolean40.Type = "Fuse"
boolean40.addObjects([body44])
body46 = doc.addObject("PartDesign::Body", "Body045")

# Sketch on XY plane
sketch35 = body46.newObject("Sketcher::SketchObject", "Sketch034")
sketch35.AttachmentSupport = (doc.getObject("XY_Plane045"), [""])
sketch35.MapMode = "FlatFace"
sketch35.AttachmentOffset = App.Placement(V(0, 0, 29), App.Rotation())
add_polygon(sketch35, [(-74, 74), (-74, 48), (74, 48), (74, 74)])  # lines 0-3
sketch35.addConstraint([
    Sketcher.Constraint("Vertical", 0),
    Sketcher.Constraint("Horizontal", 1),
    Sketcher.Constraint("Vertical", 2),
    Sketcher.Constraint("Horizontal", 3),
    Sketcher.Constraint("DistanceX", 1, 1, 1, 2, 148.0),
    Sketcher.Constraint("DistanceY", 0, 2, 0, 1, 26.0),
    Sketcher.Constraint("DistanceX", 0, 2, -1, 1, 74.0),
    Sketcher.Constraint("DistanceY", -1, 1, 0, 2, 48.0),
])
pad35 = body46.newObject("PartDesign::Pad", "Pad034")
pad35.Profile = sketch35
pad35.Length = 55
body47 = doc.addObject("PartDesign::Body", "Body046")

# Sketch on XY plane
sketch36 = body47.newObject("Sketcher::SketchObject", "Sketch035")
sketch36.AttachmentSupport = (doc.getObject("XY_Plane046"), [""])
sketch36.MapMode = "FlatFace"
sketch36.AttachmentOffset = App.Placement(V(0, 0, 29), App.Rotation())
sketch36.addGeometry(Part.Circle(V(0, 0, 0), V(0, 0, 1), 74), False)
sketch36.addConstraint([
    Sketcher.Constraint("Coincident", 0, 3, -1, 1),
    Sketcher.Constraint("Diameter", 0, 148.0),
])
pad36 = body47.newObject("PartDesign::Pad", "Pad035")
pad36.Profile = sketch36
pad36.Length = 51
body48 = doc.addObject("PartDesign::Body", "Body047")

# Sketch on XY plane
sketch37 = body48.newObject("Sketcher::SketchObject", "Sketch036")
sketch37.AttachmentSupport = (doc.getObject("XY_Plane047"), [""])
sketch37.MapMode = "FlatFace"
sketch37.AttachmentOffset = App.Placement(V(0, 0, 29), App.Rotation())
add_polygon(sketch37, [(-74, 74), (-74, 0), (74, 0), (74, 74)])  # lines 0-3
sketch37.addConstraint([
    Sketcher.Constraint("Vertical", 0),
    Sketcher.Constraint("Horizontal", 1),
    Sketcher.Constraint("Vertical", 2),
    Sketcher.Constraint("Horizontal", 3),
    Sketcher.Constraint("Symmetric", 0, 2, 1, 2, -1, 1),
    Sketcher.Constraint("DistanceX", 1, 1, 1, 2, 148.0),
    Sketcher.Constraint("DistanceY", 0, 2, 0, 1, 74.0),
])
pad37 = body48.newObject("PartDesign::Pad", "Pad036")
pad37.Profile = sketch37
pad37.Length = 55
doc.recompute()

boolean41 = body48.newObject("PartDesign::Boolean", "Boolean040")
boolean41.Type = "Cut"
boolean41.addObjects([body47])
doc.recompute()

boolean42 = body48.newObject("PartDesign::Boolean", "Boolean041")
boolean42.Type = "Cut"
boolean42.addObjects([body46])
doc.recompute()

boolean43 = body48.newObject("PartDesign::Boolean", "Boolean042")
boolean43.Type = "Cut"
boolean43.addObjects([body45])
doc.recompute()

boolean44 = body48.newObject("PartDesign::Boolean", "Boolean043")
boolean44.Type = "Cut"
boolean44.addObjects([body39])
doc.recompute()

boolean45 = body48.newObject("PartDesign::Boolean", "Boolean044")
boolean45.Type = "Cut"
boolean45.addObjects([body33])
doc.recompute()

boolean46 = body48.newObject("PartDesign::Boolean", "Boolean045")
boolean46.Type = "Cut"
boolean46.addObjects([body13])
mirroring.Visibility = False

doc.recompute()
